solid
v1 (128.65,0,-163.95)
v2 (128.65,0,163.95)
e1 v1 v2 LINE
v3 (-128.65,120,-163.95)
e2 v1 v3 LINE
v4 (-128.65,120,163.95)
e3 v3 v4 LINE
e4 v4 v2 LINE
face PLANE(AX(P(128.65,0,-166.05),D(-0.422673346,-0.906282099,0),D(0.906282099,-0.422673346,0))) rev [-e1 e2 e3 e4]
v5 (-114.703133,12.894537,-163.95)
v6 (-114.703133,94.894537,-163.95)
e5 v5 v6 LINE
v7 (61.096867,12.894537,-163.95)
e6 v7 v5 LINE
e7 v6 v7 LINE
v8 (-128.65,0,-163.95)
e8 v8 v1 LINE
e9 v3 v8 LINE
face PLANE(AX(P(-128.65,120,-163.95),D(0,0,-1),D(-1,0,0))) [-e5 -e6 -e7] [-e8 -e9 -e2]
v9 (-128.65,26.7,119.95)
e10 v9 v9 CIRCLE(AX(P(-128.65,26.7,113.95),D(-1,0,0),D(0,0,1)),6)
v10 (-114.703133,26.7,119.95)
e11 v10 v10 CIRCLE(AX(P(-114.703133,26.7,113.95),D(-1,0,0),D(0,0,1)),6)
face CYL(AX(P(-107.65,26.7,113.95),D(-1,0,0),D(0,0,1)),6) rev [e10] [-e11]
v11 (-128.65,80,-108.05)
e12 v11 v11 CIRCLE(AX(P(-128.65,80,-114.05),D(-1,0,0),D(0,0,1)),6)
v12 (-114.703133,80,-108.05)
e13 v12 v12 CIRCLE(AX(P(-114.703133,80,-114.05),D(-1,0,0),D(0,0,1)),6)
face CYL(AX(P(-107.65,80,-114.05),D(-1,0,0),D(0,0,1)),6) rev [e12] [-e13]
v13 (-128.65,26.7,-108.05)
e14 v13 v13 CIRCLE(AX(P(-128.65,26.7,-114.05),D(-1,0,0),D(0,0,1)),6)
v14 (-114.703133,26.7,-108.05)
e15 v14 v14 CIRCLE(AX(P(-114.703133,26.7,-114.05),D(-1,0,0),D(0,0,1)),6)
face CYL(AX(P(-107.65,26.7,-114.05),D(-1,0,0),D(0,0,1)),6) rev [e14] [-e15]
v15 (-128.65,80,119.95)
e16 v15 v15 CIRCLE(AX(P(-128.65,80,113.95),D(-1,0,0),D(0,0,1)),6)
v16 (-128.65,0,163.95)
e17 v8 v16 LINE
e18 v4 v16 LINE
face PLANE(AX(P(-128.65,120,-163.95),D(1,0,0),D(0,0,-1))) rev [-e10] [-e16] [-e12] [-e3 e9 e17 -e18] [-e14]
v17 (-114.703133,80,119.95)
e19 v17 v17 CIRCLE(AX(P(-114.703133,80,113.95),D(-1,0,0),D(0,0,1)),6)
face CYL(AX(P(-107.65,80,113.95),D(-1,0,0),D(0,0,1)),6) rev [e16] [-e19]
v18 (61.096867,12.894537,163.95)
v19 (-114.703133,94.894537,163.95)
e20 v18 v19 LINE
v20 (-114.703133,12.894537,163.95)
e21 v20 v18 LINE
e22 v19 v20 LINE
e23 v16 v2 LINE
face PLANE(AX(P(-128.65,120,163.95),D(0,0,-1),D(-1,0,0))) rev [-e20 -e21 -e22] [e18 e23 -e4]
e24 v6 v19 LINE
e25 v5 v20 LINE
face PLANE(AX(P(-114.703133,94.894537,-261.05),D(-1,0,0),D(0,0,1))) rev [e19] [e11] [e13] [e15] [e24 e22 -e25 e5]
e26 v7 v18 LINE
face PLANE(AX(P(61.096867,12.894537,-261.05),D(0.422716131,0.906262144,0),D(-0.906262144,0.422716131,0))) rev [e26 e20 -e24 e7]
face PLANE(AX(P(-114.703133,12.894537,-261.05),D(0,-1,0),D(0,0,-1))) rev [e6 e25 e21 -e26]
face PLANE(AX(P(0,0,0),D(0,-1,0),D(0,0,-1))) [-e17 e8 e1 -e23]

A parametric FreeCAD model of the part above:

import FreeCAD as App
import Part
import Sketcher

V = App.Vector
Q = App.Units.Quantity


def add_polygon(sketch, points):
    """Adds a closed chain of lines whose ends are joined by coincident constraints."""
    first, n = sketch.GeometryCount, len(points)
    for a, b in zip(points, points[1:] + points[:1]):
        sketch.addGeometry(Part.LineSegment(App.Vector(*a, 0), App.Vector(*b, 0)), False)
    for i in range(n):
        sketch.addConstraint(Sketcher.Constraint("Coincident", first + i, 2, first + (i + 1) % n, 1))

doc = App.newDocument("Part")
body = doc.addObject("PartDesign::Body", "Body")

sketch1 = body.newObject("Sketcher::SketchObject", "Sketch")
sketch1.AttachmentSupport = (doc.getObject("XZ_Plane"), [""])
sketch1.MapMode = "FlatFace"
add_polygon(sketch1, [(-128.65, -163.95), (-128.65, 163.95), (128.65, 163.95), (128.65, -163.95)])
sketch1.addConstraint([
    Sketcher.Constraint("Vertical", 0),
    Sketcher.Constraint("Horizontal", 1),
    Sketcher.Constraint("Vertical", 2),
    Sketcher.Constraint("Horizontal", 3),
    Sketcher.Constraint("Symmetric", 0, 2, 2, 2, -1, 1),
    Sketcher.Constraint("DistanceX", 1, 1, 1, 2, Q("257.3 mm")),
    Sketcher.Constraint("DistanceY", 0, 1, 0, 2, Q("327.9 mm")),
])
pad1 = body.newObject("PartDesign::Pad", "Pad")
pad1.Profile = sketch1
pad1.Length = 120
pad1.Reversed = True

sketch2 = body.newObject("Sketcher::SketchObject", "Sketch001")
sketch2.AttachmentSupport = (doc.getObject("XY_Plane"), [""])
sketch2.MapMode = "FlatFace"
sketch2.AttachmentOffset = App.Placement(V(0, 0, 163.95), App.Rotation())
add_polygon(sketch2, [(-128.65, 120), (128.65, 0), (128.65, 120)])
sketch2.addConstraint([
    Sketcher.Constraint("Vertical", 1),
    Sketcher.Constraint("Horizontal", 2),
    Sketcher.Constraint("PointOnObject", 0, 2, -1),
    Sketcher.Constraint("DistanceY", 1, 1, 1, 2, Q("120 mm")),
    Sketcher.Constraint("DistanceX", 2, 2, 2, 1, Q("257.3 mm")),
    Sketcher.Constraint("DistanceX", -1, 1, 0, 2, Q("128.65 mm")),
])
pocket1 = body.newObject("PartDesign::Pocket", "Pocket")
pocket1.Profile = sketch2
pocket1.Length = 330

sketch3 = body.newObject("Sketcher::SketchObject", "Sketch002")
sketch3.AttachmentSupport = (doc.getObject("XY_Plane"), [""])
sketch3.MapMode = "FlatFace"
sketch3.AttachmentOffset = App.Placement(V(0, 0, 163.95), App.Rotation())
add_polygon(sketch3, [(-114.703133, 94.894537), (-114.703133, 12.894537), (61.096867, 12.894537)])
sketch3.addConstraint([
    Sketcher.Constraint("Vertical", 0),
    Sketcher.Constraint("Horizontal", 1),
    Sketcher.Constraint("DistanceY", 0, 2, 0, 1, Q("82 mm")),
    Sketcher.Constraint("DistanceX", 1, 1, 1, 2, Q("175.8 mm")),
    Sketcher.Constraint("DistanceX", 0, 2, -1, 1, Q("114.703133 mm")),
    Sketcher.Constraint("DistanceY", -1, 1, 0, 2, Q("12.894537 mm")),
])
pocket2 = body.newObject("PartDesign::Pocket", "Pocket001")
pocket2.Profile = sketch3
pocket2.Length = 425

sketch4 = body.newObject("Sketcher::SketchObject", "Sketch003")
sketch4.AttachmentSupport = (doc.getObject("YZ_Plane"), [""])
sketch4.MapMode = "FlatFace"
sketch4.AttachmentOffset = App.Placement(V(0, 0, -128.65), App.Rotation())
sketch4.addGeometry([
    Part.Circle(V(80, -114.05, 0), V(0, 0, 1), 6),
    Part.Circle(V(26.7, -114.05, 0), V(0, 0, 1), 6),
    Part.Circle(V(80, 113.95, 0), V(0, 0, 1), 6),
    Part.Circle(V(26.7, 113.95, 0), V(0, 0, 1), 6),
], False)
sketch4.addConstraint([
    Sketcher.Constraint("Equal", 0, 1),
    Sketcher.Constraint("Equal", 1, 2),
    Sketcher.Constraint("Equal", 2, 3),
    Sketcher.Constraint("Horizontal", 0, 3, 1, 3),
    Sketcher.Constraint("Horizontal", 2, 3, 3, 3),
    Sketcher.Constraint("Vertical", 0, 3, 2, 3),
    Sketcher.Constraint("Vertical", 1, 3, 3, 3),
    Sketcher.Constraint("Diameter", 0, Q("12 mm")),
    Sketcher.Constraint("DistanceX", -1, 1, 0, 3, Q("80 mm")),
    Sketcher.Constraint("DistanceY", 0, 3, 2, 3, Q("228 mm")),
    Sketcher.Constraint("DistanceX", -1, 1, 1, 3, Q("26.7 mm")),
    Sketcher.Constraint("DistanceY", 0, 3, -1, 1, Q("114.05 mm")),
])
pocket3 = body.newObject("PartDesign::Pocket", "Pocket002")
pocket3.Profile = sketch4
pocket3.Length = 21
pocket3.Reversed = True

doc.recompute()
